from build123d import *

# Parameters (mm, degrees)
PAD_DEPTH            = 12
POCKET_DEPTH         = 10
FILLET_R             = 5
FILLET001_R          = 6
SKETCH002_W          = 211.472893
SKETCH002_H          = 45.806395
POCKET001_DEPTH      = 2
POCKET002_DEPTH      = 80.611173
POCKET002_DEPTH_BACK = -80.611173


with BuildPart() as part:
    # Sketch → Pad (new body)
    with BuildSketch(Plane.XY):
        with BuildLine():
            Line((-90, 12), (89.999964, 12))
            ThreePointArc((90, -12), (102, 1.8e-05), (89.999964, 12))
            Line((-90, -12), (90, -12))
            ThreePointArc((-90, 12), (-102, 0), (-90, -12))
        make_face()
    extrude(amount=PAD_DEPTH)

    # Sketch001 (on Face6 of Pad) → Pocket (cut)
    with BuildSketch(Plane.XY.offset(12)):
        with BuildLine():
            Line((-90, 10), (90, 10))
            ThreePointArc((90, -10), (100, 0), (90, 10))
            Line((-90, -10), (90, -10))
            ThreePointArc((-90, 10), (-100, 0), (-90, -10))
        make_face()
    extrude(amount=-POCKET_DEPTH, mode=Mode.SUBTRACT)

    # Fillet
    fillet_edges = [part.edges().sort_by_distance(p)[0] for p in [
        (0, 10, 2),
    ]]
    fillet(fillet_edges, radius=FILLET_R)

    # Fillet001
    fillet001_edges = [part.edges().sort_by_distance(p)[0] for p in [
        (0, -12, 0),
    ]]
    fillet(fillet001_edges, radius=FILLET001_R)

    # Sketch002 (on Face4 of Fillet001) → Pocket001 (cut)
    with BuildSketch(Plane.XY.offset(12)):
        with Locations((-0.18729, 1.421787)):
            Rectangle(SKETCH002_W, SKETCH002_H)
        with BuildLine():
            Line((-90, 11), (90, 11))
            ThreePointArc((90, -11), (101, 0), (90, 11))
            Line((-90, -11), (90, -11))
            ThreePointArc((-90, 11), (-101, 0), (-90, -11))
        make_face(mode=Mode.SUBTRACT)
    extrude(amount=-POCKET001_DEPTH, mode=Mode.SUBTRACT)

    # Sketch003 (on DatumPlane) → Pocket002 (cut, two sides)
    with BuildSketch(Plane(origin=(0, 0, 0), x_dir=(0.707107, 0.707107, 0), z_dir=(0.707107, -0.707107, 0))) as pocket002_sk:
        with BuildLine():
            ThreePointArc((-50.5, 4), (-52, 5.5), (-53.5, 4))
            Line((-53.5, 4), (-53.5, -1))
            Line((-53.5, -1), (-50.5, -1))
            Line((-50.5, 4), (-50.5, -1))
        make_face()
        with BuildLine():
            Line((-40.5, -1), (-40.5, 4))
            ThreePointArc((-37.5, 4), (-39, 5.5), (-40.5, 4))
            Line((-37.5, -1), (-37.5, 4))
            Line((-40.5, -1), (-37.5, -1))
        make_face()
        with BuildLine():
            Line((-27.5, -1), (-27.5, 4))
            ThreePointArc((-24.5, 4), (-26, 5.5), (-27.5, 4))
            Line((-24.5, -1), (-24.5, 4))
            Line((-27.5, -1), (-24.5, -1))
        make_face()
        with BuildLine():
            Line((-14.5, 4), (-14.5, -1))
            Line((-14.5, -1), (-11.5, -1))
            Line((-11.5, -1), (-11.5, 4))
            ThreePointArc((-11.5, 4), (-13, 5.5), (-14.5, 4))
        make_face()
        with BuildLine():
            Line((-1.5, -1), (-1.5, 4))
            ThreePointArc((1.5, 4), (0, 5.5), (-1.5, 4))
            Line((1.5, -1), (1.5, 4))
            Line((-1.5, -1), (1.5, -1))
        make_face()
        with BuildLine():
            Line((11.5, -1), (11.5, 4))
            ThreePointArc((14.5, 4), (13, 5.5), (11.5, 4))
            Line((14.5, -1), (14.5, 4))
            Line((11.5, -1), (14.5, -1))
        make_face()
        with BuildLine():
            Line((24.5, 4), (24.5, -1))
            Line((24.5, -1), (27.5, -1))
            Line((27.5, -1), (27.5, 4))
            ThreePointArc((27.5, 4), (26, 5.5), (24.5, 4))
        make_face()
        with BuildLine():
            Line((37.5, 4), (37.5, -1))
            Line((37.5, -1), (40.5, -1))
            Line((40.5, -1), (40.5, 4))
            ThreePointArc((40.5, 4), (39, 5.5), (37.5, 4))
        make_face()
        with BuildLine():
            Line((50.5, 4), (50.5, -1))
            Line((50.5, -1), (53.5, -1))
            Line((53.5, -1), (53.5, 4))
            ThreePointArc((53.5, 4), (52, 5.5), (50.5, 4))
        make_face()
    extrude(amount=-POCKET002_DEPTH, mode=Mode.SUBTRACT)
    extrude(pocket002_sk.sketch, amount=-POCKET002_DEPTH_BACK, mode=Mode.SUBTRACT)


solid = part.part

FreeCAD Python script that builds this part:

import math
import FreeCAD as App
import Part
import Sketcher

V = App.Vector


def edges_at(feature, points):
    """Names of the edges that pass closest to the given points."""
    edges = feature.Shape.Edges
    near = lambda p: min(range(len(edges)), key=lambda i: edges[i].distToShape(Part.Vertex(*p))[0])
    return sorted({f"Edge{near(p) + 1}" for p in points})


def add_polygon(sketch, points):
    """Adds a closed chain of lines whose ends are joined by coincident constraints."""
    first, n = sketch.GeometryCount, len(points)
    for a, b in zip(points, points[1:] + points[:1]):
        sketch.addGeometry(Part.LineSegment(App.Vector(*a, 0), App.Vector(*b, 0)), False)
    for i in range(n):
        sketch.addConstraint(Sketcher.Constraint("Coincident", first + i, 2, first + (i + 1) % n, 1))

doc = App.newDocument("Part")
body = doc.addObject("PartDesign::Body", "Body")

sketch1 = body.newObject("Sketcher::SketchObject", "Sketch")
sketch1.AttachmentSupport = (doc.getObject("XY_Plane"), [""])
sketch1.MapMode = "FlatFace"
sketch1.addGeometry([
    Part.LineSegment(V(90, 12, 0), V(-90, 12, 0)),
    Part.ArcOfCircle(Part.Circle(V(-90, 0, 0), V(0, 0, 1), 12), math.radians(90), math.radians(270)),
    Part.LineSegment(V(-90, -12, 0), V(90, -12, 0)),
    Part.ArcOfCircle(Part.Circle(V(90, 0, 0), V(0, 0, 1), 12), math.radians(-90), math.radians(90)),
], False)
sketch1.addConstraint([
    Sketcher.Constraint("Tangent", 0, 2, 1, 1),
    Sketcher.Constraint("Tangent", 1, 2, 2, 1),
    Sketcher.Constraint("Tangent", 2, 2, 3, 1),
    Sketcher.Constraint("Coincident", 3, 2, 0, 1),
    Sketcher.Constraint("Horizontal", 0),
    Sketcher.Constraint("Horizontal", 2),
    Sketcher.Constraint("Symmetric", 1, 3, 3, 3, -1, 1),
    Sketcher.Constraint("Radius", 1, 12.0),
    Sketcher.Constraint("DistanceX", 2, 1, 2, 2, 180.0),
    Sketcher.Constraint("DistanceX", 0, 2, 0, 1, 179.999964),
])
pad1 = body.newObject("PartDesign::Pad", "Pad")
pad1.Profile = sketch1
pad1.Length = 12

sketch2 = body.newObject("Sketcher::SketchObject", "Sketch001")
sketch2.AttachmentSupport = (doc.getObject("XY_Plane"), [""])
sketch2.MapMode = "FlatFace"
sketch2.AttachmentOffset = App.Placement(V(0, 0, 12), App.Rotation())
sketch2.addGeometry([
    Part.LineSegment(V(90, 10, 0), V(-90, 10, 0)),
    Part.ArcOfCircle(Part.Circle(V(-90, 0, 0), V(0, 0, 1), 10), math.radians(90), math.radians(270)),
    Part.LineSegment(V(-90, -10, 0), V(90, -10, 0)),
    Part.ArcOfCircle(Part.Circle(V(90, 0, 0), V(0, 0, 1), 10), math.radians(-90), math.radians(90)),
], False)
sketch2.addConstraint([
    Sketcher.Constraint("Tangent", 0, 2, 1, 1),
    Sketcher.Constraint("Tangent", 1, 2, 2, 1),
    Sketcher.Constraint("Tangent", 2, 2, 3, 1),
    Sketcher.Constraint("Tangent", 3, 2, 0, 1),
    Sketcher.Constraint("Horizontal", 0),
    Sketcher.Constraint("Horizontal", 2),
    Sketcher.Constraint("Symmetric", 1, 3, 3, 3, -1, 1),
    Sketcher.Constraint("Radius", 1, 10.0),
    Sketcher.Constraint("DistanceX", 0, 2, 0, 1, 180.0),
])
pocket1 = body.newObject("PartDesign::Pocket", "Pocket")
pocket1.Profile = sketch2
pocket1.Length = 10
doc.recompute()

fillet = body.newObject("PartDesign::Fillet", "Fillet")
fillet.Base = (pocket1, edges_at(pocket1, [(0, 10, 2)]))
fillet.Radius = 5
doc.recompute()

fillet2 = body.newObject("PartDesign::Fillet", "Fillet001")
fillet2.Base = (fillet, edges_at(fillet, [(0, -12, 0)]))
fillet2.Radius = 6

sketch3 = body.newObject("Sketcher::SketchObject", "Sketch002")
sketch3.AttachmentSupport = (doc.getObject("XY_Plane"), [""])
sketch3.MapMode = "FlatFace"
sketch3.AttachmentOffset = App.Placement(V(0, 0, 12), App.Rotation())
add_polygon(sketch3, [(-106, 24), (-106, -21), (106, -21), (106, 24)])
sketch3.addGeometry(Part.ArcOfCircle(Part.Circle(V(-90, 0, 0), V(0, 0, 1), 11), math.radians(90), math.radians(270)), False)
sketch3.addGeometry(Part.LineSegment(V(-90, 11, 0), V(90, 11, 0)), False)
sketch3.addGeometry(Part.ArcOfCircle(Part.Circle(V(90, 0, 0), V(0, 0, 1), 11), math.radians(-90), math.radians(90)), False)
sketch3.addGeometry(Part.LineSegment(V(90, -11, 0), V(-90, -11, 0)), False)
sketch3.addConstraint([
    Sketcher.Constraint("Tangent", 4, 1, 5, 1),
    Sketcher.Constraint("Tangent", 5, 2, 6, 2),
    Sketcher.Constraint("Tangent", 6, 1, 7, 1),
    Sketcher.Constraint("Tangent", 7, 2, 4, 2),
    Sketcher.Constraint("Vertical", 0),
    Sketcher.Constraint("Horizontal", 1),
    Sketcher.Constraint("Vertical", 2),
    Sketcher.Constraint("Horizontal", 3),
    Sketcher.Constraint("Horizontal", 5),
    Sketcher.Constraint("Horizontal", 7),
    Sketcher.Constraint("Symmetric", 4, 3, 6, 3, -1, 1),
    Sketcher.Constraint("Radius", 4, 11.0),
    Sketcher.Constraint("DistanceX", 5, 1, 5, 2, 180.0),
    Sketcher.Constraint("DistanceX", 1, 1, 1, 2, 211.472893),
    Sketcher.Constraint("DistanceY", 0, 2, 0, 1, 45.806395),
    Sketcher.Constraint("DistanceY", 0, 2, -1, 1, 21.48141),
    Sketcher.Constraint("DistanceX", 0, 2, -1, 1, 105.923737),
])
pocket2 = body.newObject("PartDesign::Pocket", "Pocket001")
pocket2.Profile = sketch3
pocket2.Length = 2

sketch4 = body.newObject("Sketcher::SketchObject", "Sketch003")
sketch4.Placement = App.Placement(V(0, 0, 0), App.Rotation(V(0.707106781, 0.707106781, 0), V(0, 0, 0.999999999), V(0.707106781, -0.707106781, 0), "ZXY"))
sketch4.addGeometry([
    Part.ArcOfCircle(Part.Circle(V(-52, 4, 0), V(0, 0, 1), 1.5), math.radians(0), math.radians(180)),
    Part.LineSegment(V(-53.5, 4, 0), V(-53.5, -1, 0)),
    Part.LineSegment(V(-53.5, -1, 0), V(-50.5, -1, 0)),
    Part.LineSegment(V(-50.5, -1, 0), V(-50.5, 4, 0)),
    Part.LineSegment(V(-40.5, 4, 0), V(-40.5, -1, 0)),
    Part.LineSegment(V(-40.5, -1, 0), V(-37.5, -1, 0)),
    Part.LineSegment(V(-37.5, -1, 0), V(-37.5, 4, 0)),
    Part.ArcOfCircle(Part.Circle(V(-39, 4, 0), V(0, 0, 1), 1.5), math.radians(0), math.radians(180)),
    Part.LineSegment(V(-27.5, 4, 0), V(-27.5, -1, 0)),
    Part.LineSegment(V(-27.5, -1, 0), V(-24.5, -1, 0)),
    Part.LineSegment(V(-24.5, -1, 0), V(-24.5, 4, 0)),
    Part.ArcOfCircle(Part.Circle(V(-26, 4, 0), V(0, 0, 1), 1.5), math.radians(0), math.radians(180)),
    Part.LineSegment(V(-14.5, 4, 0), V(-14.5, -1, 0)),
    Part.LineSegment(V(-14.5, -1, 0), V(-11.5, -1, 0)),
    Part.LineSegment(V(-11.5, -1, 0), V(-11.5, 4, 0)),
    Part.ArcOfCircle(Part.Circle(V(-13, 4, 0), V(0, 0, 1), 1.5), math.radians(0), math.radians(180)),
    Part.LineSegment(V(-1.5, 4, 0), V(-1.5, -1, 0)),
    Part.LineSegment(V(-1.5, -1, 0), V(1.5, -1, 0)),
    Part.LineSegment(V(1.5, -1, 0), V(1.5, 4, 0)),
    Part.ArcOfCircle(Part.Circle(V(0, 4, 0), V(0, 0, 1), 1.5), math.radians(0), math.radians(180)),
    Part.LineSegment(V(11.5, 4, 0), V(11.5, -1, 0)),
    Part.LineSegment(V(11.5, -1, 0), V(14.5, -1, 0)),
    Part.LineSegment(V(14.5, -1, 0), V(14.5, 4, 0)),
    Part.ArcOfCircle(Part.Circle(V(13, 4, 0), V(0, 0, 1), 1.5), math.radians(0), math.radians(180)),
    Part.LineSegment(V(24.5, 4, 0), V(24.5, -1, 0)),
    Part.LineSegment(V(24.5, -1, 0), V(27.5, -1, 0)),
    Part.LineSegment(V(27.5, -1, 0), V(27.5, 4, 0)),
    Part.ArcOfCircle(Part.Circle(V(26, 4, 0), V(0, 0, 1), 1.5), math.radians(0), math.radians(180)),
    Part.LineSegment(V(37.5, 4, 0), V(37.5, -1, 0)),
    Part.LineSegment(V(37.5, -1, 0), V(40.5, -1, 0)),
    Part.LineSegment(V(40.5, -1, 0), V(40.5, 4, 0)),
    Part.ArcOfCircle(Part.Circle(V(39, 4, 0), V(0, 0, 1), 1.5), math.radians(0), math.radians(180)),
    Part.LineSegment(V(50.5, 4, 0), V(50.5, -1, 0)),
    Part.LineSegment(V(50.5, -1, 0), V(53.5, -1, 0)),
    Part.LineSegment(V(53.5, -1, 0), V(53.5, 4, 0)),
    Part.ArcOfCircle(Part.Circle(V(52, 4, 0), V(0, 0, 1), 1.5), math.radians(0), math.radians(180)),
], False)
sketch4.addConstraint([
    Sketcher.Constraint("Tangent", 0, 2, 1, 1),
    Sketcher.Constraint("Coincident", 1, 2, 2, 1),
    Sketcher.Constraint("Coincident", 2, 2, 3, 1),
    Sketcher.Constraint("Tangent", 3, 2, 0, 1),
    Sketcher.Constraint("Coincident", 4, 2, 5, 1),
    Sketcher.Constraint("Coincident", 5, 2, 6, 1),
    Sketcher.Constraint("Tangent", 6, 2, 7, 1),
    Sketcher.Constraint("Tangent", 7, 2, 4, 1),
    Sketcher.Constraint("Coincident", 8, 2, 9, 1),
    Sketcher.Constraint("Coincident", 9, 2, 10, 1),
    Sketcher.Constraint("Tangent", 10, 2, 11, 1),
    Sketcher.Constraint("Tangent", 11, 2, 8, 1),
    Sketcher.Constraint("Coincident", 12, 2, 13, 1),
    Sketcher.Constraint("Coincident", 13, 2, 14, 1),
    Sketcher.Constraint("Tangent", 14, 2, 15, 1),
    Sketcher.Constraint("Tangent", 15, 2, 12, 1),
    Sketcher.Constraint("Coincident", 16, 2, 17, 1),
    Sketcher.Constraint("Coincident", 17, 2, 18, 1),
    Sketcher.Constraint("Tangent", 18, 2, 19, 1),
    Sketcher.Constraint("Tangent", 19, 2, 16, 1),
    Sketcher.Constraint("Coincident", 20, 2, 21, 1),
    Sketcher.Constraint("Coincident", 21, 2, 22, 1),
    Sketcher.Constraint("Tangent", 22, 2, 23, 1),
    Sketcher.Constraint("Tangent", 23, 2, 20, 1),
    Sketcher.Constraint("Coincident", 24, 2, 25, 1),
    Sketcher.Constraint("Coincident", 25, 2, 26, 1),
    Sketcher.Constraint("Tangent", 26, 2, 27, 1),
    Sketcher.Constraint("Tangent", 27, 2, 24, 1),
    Sketcher.Constraint("Coincident", 28, 2, 29, 1),
    Sketcher.Constraint("Coincident", 29, 2, 30, 1),
    Sketcher.Constraint("Tangent", 30, 2, 31, 1),
    Sketcher.Constraint("Tangent", 31, 2, 28, 1),
    Sketcher.Constraint("Coincident", 32, 2, 33, 1),
    Sketcher.Constraint("Coincident", 33, 2, 34, 1),
    Sketcher.Constraint("Tangent", 34, 2, 35, 1),
    Sketcher.Constraint("Tangent", 35, 2, 32, 1),
    Sketcher.Constraint("Vertical", 1),
    Sketcher.Constraint("Horizontal", 2),
    Sketcher.Constraint("Vertical", 3),
    Sketcher.Constraint("Vertical", 4),
    Sketcher.Constraint("Horizontal", 5),
    Sketcher.Constraint("Vertical", 6),
    Sketcher.Constraint("Vertical", 8),
    Sketcher.Constraint("Horizontal", 9),
    Sketcher.Constraint("Vertical", 10),
    Sketcher.Constraint("Vertical", 12),
    Sketcher.Constraint("Horizontal", 13),
    Sketcher.Constraint("Vertical", 14),
    Sketcher.Constraint("Vertical", 16),
    Sketcher.Constraint("Horizontal", 17),
    Sketcher.Constraint("Vertical", 18),
    Sketcher.Constraint("Vertical", 20),
    Sketcher.Constraint("Horizontal", 21),
    Sketcher.Constraint("Vertical", 22),
    Sketcher.Constraint("Vertical", 24),
    Sketcher.Constraint("Horizontal", 25),
    Sketcher.Constraint("Vertical", 26),
    Sketcher.Constraint("Vertical", 28),
    Sketcher.Constraint("Horizontal", 29),
    Sketcher.Constraint("Vertical", 30),
    Sketcher.Constraint("Vertical", 32),
    Sketcher.Constraint("Horizontal", 33),
    Sketcher.Constraint("Vertical", 34),
    Sketcher.Constraint("Equal", 0, 7),
    Sketcher.Constraint("Equal", 7, 11),
    Sketcher.Constraint("Equal", 11, 15),
    Sketcher.Constraint("Equal", 15, 19),
    Sketcher.Constraint("Equal", 19, 23),
    Sketcher.Constraint("Equal", 23, 27),
    Sketcher.Constraint("Equal", 27, 31),
    Sketcher.Constraint("Equal", 31, 35),
    Sketcher.Constraint("Symmetric", 15, 3, 23, 3, -2),
    Sketcher.Constraint("Symmetric", 11, 3, 27, 3, -2),
    Sketcher.Constraint("Symmetric", 7, 3, 31, 3, -2),
    Sketcher.Constraint("Symmetric", 0, 3, 35, 3, -2),
    Sketcher.Constraint("PointOnObject", 19, 3, -2),
    Sketcher.Constraint("Horizontal", 0, 3, 7, 3),
    Sketcher.Constraint("Horizontal", 7, 3, 11, 3),
    Sketcher.Constraint("Horizontal", 11, 3, 15, 3),
    Sketcher.Constraint("Horizontal", 15, 3, 19, 3),
    Sketcher.Constraint("Horizontal", 2, 2, 4, 2),
    Sketcher.Constraint("Horizontal", 5, 2, 8, 2),
    Sketcher.Constraint("Horizontal", 9, 2, 12, 2),
    Sketcher.Constraint("Horizontal", 13, 2, 16, 2),
    Sketcher.Constraint("Horizontal", 17, 2, 20, 2),
    Sketcher.Constraint("Horizontal", 21, 2, 24, 2),
    Sketcher.Constraint("Horizontal", 25, 2, 28, 2),
    Sketcher.Constraint("Horizontal", 29, 2, 32, 2),
    Sketcher.Constraint("Radius", 0, 1.5),
    Sketcher.Constraint("DistanceY", 1, 2, 1, 1, 5.0),
    Sketcher.Constraint("DistanceX", 0, 3, -1, 1, 52.0),
    Sketcher.Constraint("DistanceY", -1, 1, 0, 3, 4.0),
    Sketcher.Constraint("DistanceX", 7, 3, -1, 1, 39.0),
    Sketcher.Constraint("DistanceX", 11, 3, -1, 1, 26.0),
    Sketcher.Constraint("DistanceX", 15, 3, -1, 1, 13.0),
])
pocket3 = body.newObject("PartDesign::Pocket", "Pocket002")
pocket3.Profile = sketch4
pocket3.Type = "ThroughAll"
pocket3.Midplane = True

doc.recompute()
